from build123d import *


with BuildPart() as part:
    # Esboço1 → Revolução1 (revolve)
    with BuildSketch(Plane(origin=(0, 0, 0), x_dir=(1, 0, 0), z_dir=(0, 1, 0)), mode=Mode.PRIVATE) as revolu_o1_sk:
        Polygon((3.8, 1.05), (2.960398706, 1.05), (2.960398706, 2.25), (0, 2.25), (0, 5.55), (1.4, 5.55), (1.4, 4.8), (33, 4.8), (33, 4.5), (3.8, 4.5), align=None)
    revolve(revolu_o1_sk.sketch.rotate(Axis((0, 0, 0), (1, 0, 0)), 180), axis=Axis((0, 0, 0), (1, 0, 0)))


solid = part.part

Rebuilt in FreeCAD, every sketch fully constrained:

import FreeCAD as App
import Part
import Sketcher

doc = App.newDocument("Part")
body = doc.addObject("PartDesign::Body", "Body")

# Sketch on XZ plane
sketch1 = body.newObject("Sketcher::SketchObject", "Sketch")
sketch1.AttachmentSupport = (doc.getObject("XZ_Plane"), [""])
sketch1.MapMode = "FlatFace"
sketch1.addGeometry([
    Part.LineSegment(App.Vector(2.96, -1.05, 0), App.Vector(3.8, -1.05, 0)),  # 0
    Part.LineSegment(App.Vector(3.8, -1.05, 0), App.Vector(3.8, -4.5, 0)),  # 1
    Part.LineSegment(App.Vector(3.8, -4.5, 0), App.Vector(33, -4.5, 0)),  # 2
    Part.LineSegment(App.Vector(33, -4.5, 0), App.Vector(33, -4.8, 0)),  # 3
    Part.LineSegment(App.Vector(33, -4.8, 0), App.Vector(1.4, -4.8, 0)),  # 4
    Part.LineSegment(App.Vector(1.4, -4.8, 0), App.Vector(1.4, -5.55, 0)),  # 5
    Part.LineSegment(App.Vector(1.4, -5.55, 0), App.Vector(0, -5.55, 0)),  # 6
    Part.LineSegment(App.Vector(0, -5.55, 0), App.Vector(0, -2.25, 0)),  # 7
    Part.LineSegment(App.Vector(0, -2.25, 0), App.Vector(2.96, -2.25, 0)),  # 8
    Part.LineSegment(App.Vector(2.96, -2.25, 0), App.Vector(2.96, -1.05, 0)),  # 9
], False)
sketch1.addConstraint([
    Sketcher.Constraint("Coincident", 0, 2, 1, 1),
    Sketcher.Constraint("Coincident", 1, 2, 2, 1),
    Sketcher.Constraint("Coincident", 2, 2, 3, 1),
    Sketcher.Constraint("Coincident", 3, 2, 4, 1),
    Sketcher.Constraint("Coincident", 4, 2, 5, 1),
    Sketcher.Constraint("Coincident", 5, 2, 6, 1),
    Sketcher.Constraint("Coincident", 6, 2, 7, 1),
    Sketcher.Constraint("Coincident", 7, 2, 8, 1),
    Sketcher.Constraint("Coincident", 8, 2, 9, 1),
    Sketcher.Constraint("Coincident", 9, 2, 0, 1),
    Sketcher.Constraint("Horizontal", 0),
    Sketcher.Constraint("Vertical", 1),
    Sketcher.Constraint("Horizontal", 2),
    Sketcher.Constraint("Vertical", 3),
    Sketcher.Constraint("Horizontal", 4),
    Sketcher.Constraint("Vertical", 5),
    Sketcher.Constraint("Horizontal", 6),
    Sketcher.Constraint("Vertical", 7),
    Sketcher.Constraint("Horizontal", 8),
    Sketcher.Constraint("Vertical", 9),
    Sketcher.Constraint("PointOnObject", 6, 2, -2),
    Sketcher.Constraint("DistanceX", 2, 1, 2, 2, 29.2),
    Sketcher.Constraint("DistanceX", 4, 2, 4, 1, 31.6),
    Sketcher.Constraint("DistanceX", 6, 2, 6, 1, 1.4),
    Sketcher.Constraint("DistanceY", 3, 2, 3, 1, 0.3),
    Sketcher.Constraint("DistanceY", 7, 1, 7, 2, 3.3),
    Sketcher.Constraint("DistanceY", 9, 1, 9, 2, 1.2),
    Sketcher.Constraint("DistanceY", 1, 2, 1, 1, 3.45),
    Sketcher.Constraint("DistanceY", 1, 2, -1, 1, 4.5),
    Sketcher.Constraint("DistanceX", 0, 1, 0, 2, 0.839601),
])
revolution = body.newObject("PartDesign::Revolution", "Revolution")
revolution.Profile = sketch1
revolution.ReferenceAxis = (sketch1, ["H_Axis"])
revolution.Angle = 360

doc.recompute()
